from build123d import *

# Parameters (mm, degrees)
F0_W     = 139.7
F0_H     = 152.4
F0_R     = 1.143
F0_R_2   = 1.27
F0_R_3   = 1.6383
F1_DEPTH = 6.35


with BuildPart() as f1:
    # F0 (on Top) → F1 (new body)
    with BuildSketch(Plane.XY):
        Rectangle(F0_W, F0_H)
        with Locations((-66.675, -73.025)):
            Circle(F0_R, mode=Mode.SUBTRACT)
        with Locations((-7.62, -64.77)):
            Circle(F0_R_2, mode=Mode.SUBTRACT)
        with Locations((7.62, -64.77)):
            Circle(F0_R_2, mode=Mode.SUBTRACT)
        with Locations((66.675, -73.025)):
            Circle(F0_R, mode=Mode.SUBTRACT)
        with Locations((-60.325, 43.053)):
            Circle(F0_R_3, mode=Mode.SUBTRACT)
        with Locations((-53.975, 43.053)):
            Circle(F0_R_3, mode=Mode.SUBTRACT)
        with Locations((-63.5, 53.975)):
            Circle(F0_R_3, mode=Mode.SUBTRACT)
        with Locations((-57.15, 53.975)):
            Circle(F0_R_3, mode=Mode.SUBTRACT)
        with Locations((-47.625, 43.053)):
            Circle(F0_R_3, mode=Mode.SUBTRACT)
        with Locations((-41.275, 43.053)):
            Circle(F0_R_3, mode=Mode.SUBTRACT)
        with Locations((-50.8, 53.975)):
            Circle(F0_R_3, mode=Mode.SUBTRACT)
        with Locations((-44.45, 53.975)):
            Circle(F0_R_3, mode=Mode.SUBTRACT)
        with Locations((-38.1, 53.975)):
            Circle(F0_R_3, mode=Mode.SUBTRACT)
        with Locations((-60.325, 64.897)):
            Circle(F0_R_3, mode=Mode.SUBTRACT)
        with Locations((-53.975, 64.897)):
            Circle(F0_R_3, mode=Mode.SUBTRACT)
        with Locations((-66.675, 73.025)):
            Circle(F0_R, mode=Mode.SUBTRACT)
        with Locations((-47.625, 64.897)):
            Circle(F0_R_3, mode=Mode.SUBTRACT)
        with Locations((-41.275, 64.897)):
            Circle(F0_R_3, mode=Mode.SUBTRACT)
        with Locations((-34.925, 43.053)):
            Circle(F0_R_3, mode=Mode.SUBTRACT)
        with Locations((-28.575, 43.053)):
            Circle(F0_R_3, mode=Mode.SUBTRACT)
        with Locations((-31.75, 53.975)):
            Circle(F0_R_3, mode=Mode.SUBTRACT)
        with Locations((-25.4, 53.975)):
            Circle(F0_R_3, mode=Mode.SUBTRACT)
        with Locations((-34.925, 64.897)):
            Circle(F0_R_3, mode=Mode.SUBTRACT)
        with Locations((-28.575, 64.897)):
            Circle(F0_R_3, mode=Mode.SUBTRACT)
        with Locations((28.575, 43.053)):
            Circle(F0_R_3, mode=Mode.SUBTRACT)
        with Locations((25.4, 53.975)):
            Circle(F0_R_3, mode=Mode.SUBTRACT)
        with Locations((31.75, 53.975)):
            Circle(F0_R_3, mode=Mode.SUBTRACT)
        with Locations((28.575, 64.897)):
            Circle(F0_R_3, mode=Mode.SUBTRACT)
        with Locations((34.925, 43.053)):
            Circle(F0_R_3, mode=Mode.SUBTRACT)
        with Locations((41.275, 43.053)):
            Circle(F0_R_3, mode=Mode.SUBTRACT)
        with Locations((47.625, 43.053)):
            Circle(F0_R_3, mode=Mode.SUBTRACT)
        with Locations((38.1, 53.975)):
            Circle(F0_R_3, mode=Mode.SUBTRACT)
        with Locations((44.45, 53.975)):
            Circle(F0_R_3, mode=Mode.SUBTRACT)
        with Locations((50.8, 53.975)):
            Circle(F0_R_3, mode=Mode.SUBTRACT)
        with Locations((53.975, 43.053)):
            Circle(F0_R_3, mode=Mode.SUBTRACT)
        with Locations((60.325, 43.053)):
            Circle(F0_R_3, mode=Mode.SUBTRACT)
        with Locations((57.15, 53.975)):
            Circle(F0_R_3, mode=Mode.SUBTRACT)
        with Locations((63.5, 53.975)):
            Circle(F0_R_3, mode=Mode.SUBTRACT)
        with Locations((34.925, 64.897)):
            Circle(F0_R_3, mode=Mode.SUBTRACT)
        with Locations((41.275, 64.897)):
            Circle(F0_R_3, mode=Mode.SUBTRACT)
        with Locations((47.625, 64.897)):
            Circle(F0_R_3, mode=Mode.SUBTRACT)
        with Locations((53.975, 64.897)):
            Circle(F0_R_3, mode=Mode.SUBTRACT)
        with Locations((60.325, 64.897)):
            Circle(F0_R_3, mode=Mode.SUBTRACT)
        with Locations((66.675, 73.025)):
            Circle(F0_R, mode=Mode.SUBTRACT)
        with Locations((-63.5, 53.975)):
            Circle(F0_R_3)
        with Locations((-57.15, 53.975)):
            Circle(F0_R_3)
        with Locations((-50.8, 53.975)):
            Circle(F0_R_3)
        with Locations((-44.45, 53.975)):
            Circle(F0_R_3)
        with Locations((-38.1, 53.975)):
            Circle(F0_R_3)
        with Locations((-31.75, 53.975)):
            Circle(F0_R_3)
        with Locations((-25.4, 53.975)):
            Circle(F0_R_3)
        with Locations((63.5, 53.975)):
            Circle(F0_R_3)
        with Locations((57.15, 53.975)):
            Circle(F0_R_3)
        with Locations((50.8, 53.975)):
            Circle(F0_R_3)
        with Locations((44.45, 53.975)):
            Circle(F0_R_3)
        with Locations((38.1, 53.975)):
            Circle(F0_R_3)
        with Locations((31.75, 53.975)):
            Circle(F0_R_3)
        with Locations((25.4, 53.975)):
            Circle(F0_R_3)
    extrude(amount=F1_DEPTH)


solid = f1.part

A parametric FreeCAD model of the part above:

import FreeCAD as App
import Part
import Sketcher
Q = App.Units.Quantity


def add_polygon(sketch, points):
    """Adds a closed chain of lines whose ends are joined by coincident constraints."""
    first, n = sketch.GeometryCount, len(points)
    for a, b in zip(points, points[1:] + points[:1]):
        sketch.addGeometry(Part.LineSegment(App.Vector(*a, 0), App.Vector(*b, 0)), False)
    for i in range(n):
        sketch.addConstraint(Sketcher.Constraint("Coincident", first + i, 2, first + (i + 1) % n, 1))

doc = App.newDocument("Part")
params = doc.addObject("Spreadsheet::Sheet", "Params")
for row, (alias, value) in enumerate([
    ("sketch1_diameter", "0.1 in"),
    ("sketch1_diameter2", "0.09 in"),
    ("sketch1_height", "6 in"),
    ("sketch1_diameter3", "0.129 in"),
    ("sketch1_width", "5.5 in"),
    ("pad1_length", "0.25 in"),
], start=1):
    params.set(f"A{row}", alias)
    params.set(f"B{row}", "=" + value)
    params.setAlias(f"B{row}", alias)

body = doc.addObject("PartDesign::Body", "Body")

# Sketch on XY plane
sketch1 = body.newObject("Sketcher::SketchObject", "Sketch")
sketch1.AttachmentSupport = (doc.getObject("XY_Plane"), [""])
sketch1.MapMode = "FlatFace"
add_polygon(sketch1, [(-69.8, 76.2), (-69.8, -76.2), (69.8, -76.2), (69.8, 76.2)])  # lines 0-3
sketch1.addGeometry(Part.Circle(App.Vector(-66.7, -73, 0), App.Vector(0, 0, 1), 1.1), False)  # 4
sketch1.addGeometry(Part.Circle(App.Vector(-7.6, -64.8, 0), App.Vector(0, 0, 1), 1.3), False)  # 5
sketch1.addGeometry(Part.Circle(App.Vector(7.6, -64.8, 0), App.Vector(0, 0, 1), 1.3), False)  # 6
sketch1.addGeometry(Part.Circle(App.Vector(66.7, -73, 0), App.Vector(0, 0, 1), 1.1), False)  # 7
sketch1.addGeometry(Part.Circle(App.Vector(-60.3, 43.1, 0), App.Vector(0, 0, 1), 1.6), False)  # 8
sketch1.addGeometry(Part.Circle(App.Vector(-54, 43.1, 0), App.Vector(0, 0, 1), 1.6), False)  # 9
sketch1.addGeometry(Part.Circle(App.Vector(-47.6, 43.1, 0), App.Vector(0, 0, 1), 1.6), False)  # 10
sketch1.addGeometry(Part.Circle(App.Vector(-41.3, 43.1, 0), App.Vector(0, 0, 1), 1.6), False)  # 11
sketch1.addGeometry(Part.Circle(App.Vector(-34.9, 43.1, 0), App.Vector(0, 0, 1), 1.6), False)  # 12
sketch1.addGeometry(Part.Circle(App.Vector(-60.3, 64.9, 0), App.Vector(0, 0, 1), 1.6), False)  # 13
sketch1.addGeometry(Part.Circle(App.Vector(-66.7, 73, 0), App.Vector(0, 0, 1), 1.1), False)  # 14
sketch1.addGeometry(Part.Circle(App.Vector(-54, 64.9, 0), App.Vector(0, 0, 1), 1.6), False)  # 15
sketch1.addGeometry(Part.Circle(App.Vector(-47.6, 64.9, 0), App.Vector(0, 0, 1), 1.6), False)  # 16
sketch1.addGeometry(Part.Circle(App.Vector(-41.3, 64.9, 0), App.Vector(0, 0, 1), 1.6), False)  # 17
sketch1.addGeometry(Part.Circle(App.Vector(-34.9, 64.9, 0), App.Vector(0, 0, 1), 1.6), False)  # 18
sketch1.addGeometry(Part.Circle(App.Vector(-28.6, 43.1, 0), App.Vector(0, 0, 1), 1.6), False)  # 19
sketch1.addGeometry(Part.Circle(App.Vector(-28.6, 64.9, 0), App.Vector(0, 0, 1), 1.6), False)  # 20
sketch1.addGeometry(Part.Circle(App.Vector(28.6, 43.1, 0), App.Vector(0, 0, 1), 1.6), False)  # 21
sketch1.addGeometry(Part.Circle(App.Vector(28.6, 64.9, 0), App.Vector(0, 0, 1), 1.6), False)  # 22
sketch1.addGeometry(Part.Circle(App.Vector(34.9, 43.1, 0), App.Vector(0, 0, 1), 1.6), False)  # 23
sketch1.addGeometry(Part.Circle(App.Vector(41.3, 43.1, 0), App.Vector(0, 0, 1), 1.6), False)  # 24
sketch1.addGeometry(Part.Circle(App.Vector(47.6, 43.1, 0), App.Vector(0, 0, 1), 1.6), False)  # 25
sketch1.addGeometry(Part.Circle(App.Vector(54, 43.1, 0), App.Vector(0, 0, 1), 1.6), False)  # 26
sketch1.addGeometry(Part.Circle(App.Vector(60.3, 43.1, 0), App.Vector(0, 0, 1), 1.6), False)  # 27
sketch1.addGeometry(Part.Circle(App.Vector(34.9, 64.9, 0), App.Vector(0, 0, 1), 1.6), False)  # 28
sketch1.addGeometry(Part.Circle(App.Vector(41.3, 64.9, 0), App.Vector(0, 0, 1), 1.6), False)  # 29
sketch1.addGeometry(Part.Circle(App.Vector(47.6, 64.9, 0), App.Vector(0, 0, 1), 1.6), False)  # 30
sketch1.addGeometry(Part.Circle(App.Vector(54, 64.9, 0), App.Vector(0, 0, 1), 1.6), False)  # 31
sketch1.addGeometry(Part.Circle(App.Vector(60.3, 64.9, 0), App.Vector(0, 0, 1), 1.6), False)  # 32
sketch1.addGeometry(Part.Circle(App.Vector(66.7, 73, 0), App.Vector(0, 0, 1), 1.1), False)  # 33
sketch1.addConstraint([
    Sketcher.Constraint("Vertical", 0),
    Sketcher.Constraint("Horizontal", 1),
    Sketcher.Constraint("Vertical", 2),
    Sketcher.Constraint("Horizontal", 3),
    Sketcher.Constraint("Equal", 5, 6),
    Sketcher.Constraint("Equal", 4, 7),
    Sketcher.Constraint("Equal", 8, 9),
    Sketcher.Constraint("Equal", 9, 10),
    Sketcher.Constraint("Equal", 10, 11),
    Sketcher.Constraint("Equal", 11, 12),
    Sketcher.Constraint("Equal", 12, 13),
    Sketcher.Constraint("Equal", 7, 14),
    Sketcher.Constraint("Equal", 13, 15),
    Sketcher.Constraint("Equal", 15, 16),
    Sketcher.Constraint("Equal", 16, 17),
    Sketcher.Constraint("Equal", 17, 18),
    Sketcher.Constraint("Equal", 18, 19),
    Sketcher.Constraint("Equal", 19, 20),
    Sketcher.Constraint("Equal", 20, 21),
    Sketcher.Constraint("Equal", 21, 22),
    Sketcher.Constraint("Equal", 22, 23),
    Sketcher.Constraint("Equal", 23, 24),
    Sketcher.Constraint("Equal", 24, 25),
    Sketcher.Constraint("Equal", 25, 26),
    Sketcher.Constraint("Equal", 26, 27),
    Sketcher.Constraint("Equal", 27, 28),
    Sketcher.Constraint("Equal", 28, 29),
    Sketcher.Constraint("Equal", 29, 30),
    Sketcher.Constraint("Equal", 30, 31),
    Sketcher.Constraint("Equal", 31, 32),
    Sketcher.Constraint("Equal", 14, 33),
    Sketcher.Constraint("Symmetric", 7, 3, 14, 3, -1, 1),
    Sketcher.Constraint("Symmetric", 4, 3, 33, 3, -1, 1),
    Sketcher.Constraint("Symmetric", 0, 2, 2, 2, -1, 1),
    Sketcher.Constraint("Symmetric", 5, 3, 6, 3, -2),
    Sketcher.Constraint("Symmetric", 4, 3, 7, 3, -2),
    Sketcher.Constraint("Symmetric", 19, 3, 21, 3, -2),
    Sketcher.Constraint("Symmetric", 20, 3, 22, 3, -2),
    Sketcher.Constraint("Symmetric", 12, 3, 23, 3, -2),
    Sketcher.Constraint("Symmetric", 11, 3, 24, 3, -2),
    Sketcher.Constraint("Symmetric", 10, 3, 25, 3, -2),
    Sketcher.Constraint("Symmetric", 9, 3, 26, 3, -2),
    Sketcher.Constraint("Symmetric", 8, 3, 27, 3, -2),
    Sketcher.Constraint("Symmetric", 18, 3, 28, 3, -2),
    Sketcher.Constraint("Symmetric", 17, 3, 29, 3, -2),
    Sketcher.Constraint("Symmetric", 16, 3, 30, 3, -2),
    Sketcher.Constraint("Symmetric", 15, 3, 31, 3, -2),
    Sketcher.Constraint("Symmetric", 13, 3, 32, 3, -2),
    Sketcher.Constraint("Horizontal", 8, 3, 9, 3),
    Sketcher.Constraint("Horizontal", 9, 3, 10, 3),
    Sketcher.Constraint("Horizontal", 10, 3, 11, 3),
    Sketcher.Constraint("Horizontal", 11, 3, 12, 3),
    Sketcher.Constraint("Horizontal", 13, 3, 15, 3),
    Sketcher.Constraint("Horizontal", 15, 3, 16, 3),
    Sketcher.Constraint("Horizontal", 16, 3, 17, 3),
    Sketcher.Constraint("Horizontal", 17, 3, 18, 3),
    Sketcher.Constraint("Horizontal", 12, 3, 19, 3),
    Sketcher.Constraint("Horizontal", 18, 3, 20, 3),
    Sketcher.Constraint("Vertical", 8, 3, 13, 3),
    Sketcher.Constraint("Vertical", 9, 3, 15, 3),
    Sketcher.Constraint("Vertical", 10, 3, 16, 3),
    Sketcher.Constraint("Vertical", 11, 3, 17, 3),
    Sketcher.Constraint("Vertical", 12, 3, 18, 3),
    Sketcher.Constraint("Vertical", 19, 3, 20, 3),
    Sketcher.Constraint("Diameter", 5, Q("0.1 in")),
    Sketcher.Constraint("Diameter", 4, Q("0.09 in")),
    Sketcher.Constraint("DistanceY", 0, 2, 0, 1, Q("6 in")),
    Sketcher.Constraint("Diameter", 8, Q("0.129 in")),
    Sketcher.Constraint("DistanceX", 1, 1, 1, 2, Q("5.5 in")),
    Sketcher.Constraint("DistanceX", 8, 3, 7, 3, Q("5 in")),
    Sketcher.Constraint("DistanceX", 8, 3, 12, 3, Q("1 in")),
    Sketcher.Constraint("DistanceX", 14, 3, 11, 3, Q("1 in")),
    Sketcher.Constraint("DistanceX", 19, 3, 25, 3, Q("3 in")),
    Sketcher.Constraint("DistanceX", 21, 3, 26, 3, Q("1 in")),
    Sketcher.Constraint("DistanceX", 5, 3, -1, 1, Q("0.3 in")),
    Sketcher.Constraint("DistanceX", 4, 3, 9, 3, Q("0.5 in")),
    Sketcher.Constraint("DistanceY", 5, 3, -1, 1, Q("2.55 in")),
    Sketcher.Constraint("DistanceX", 4, 3, 7, 3, Q("5.25 in")),
    Sketcher.Constraint("DistanceY", 4, 3, 8, 3, Q("4.57 in")),
    Sketcher.Constraint("DistanceY", 8, 3, 13, 3, Q("0.86 in")),
    Sketcher.Constraint("DistanceY", 13, 3, 14, 3, Q("0.32 in")),
])
sketch1.setExpression("Constraints[68]", "Params.sketch1_diameter")
sketch1.setExpression("Constraints[69]", "Params.sketch1_diameter2")
sketch1.setExpression("Constraints[70]", "Params.sketch1_height")
sketch1.setExpression("Constraints[71]", "Params.sketch1_diameter3")
sketch1.setExpression("Constraints[72]", "Params.sketch1_width")
pad1 = body.newObject("PartDesign::Pad", "Pad")
pad1.Profile = sketch1
pad1.setExpression("Length", "Params.pad1_length")

doc.recompute()
